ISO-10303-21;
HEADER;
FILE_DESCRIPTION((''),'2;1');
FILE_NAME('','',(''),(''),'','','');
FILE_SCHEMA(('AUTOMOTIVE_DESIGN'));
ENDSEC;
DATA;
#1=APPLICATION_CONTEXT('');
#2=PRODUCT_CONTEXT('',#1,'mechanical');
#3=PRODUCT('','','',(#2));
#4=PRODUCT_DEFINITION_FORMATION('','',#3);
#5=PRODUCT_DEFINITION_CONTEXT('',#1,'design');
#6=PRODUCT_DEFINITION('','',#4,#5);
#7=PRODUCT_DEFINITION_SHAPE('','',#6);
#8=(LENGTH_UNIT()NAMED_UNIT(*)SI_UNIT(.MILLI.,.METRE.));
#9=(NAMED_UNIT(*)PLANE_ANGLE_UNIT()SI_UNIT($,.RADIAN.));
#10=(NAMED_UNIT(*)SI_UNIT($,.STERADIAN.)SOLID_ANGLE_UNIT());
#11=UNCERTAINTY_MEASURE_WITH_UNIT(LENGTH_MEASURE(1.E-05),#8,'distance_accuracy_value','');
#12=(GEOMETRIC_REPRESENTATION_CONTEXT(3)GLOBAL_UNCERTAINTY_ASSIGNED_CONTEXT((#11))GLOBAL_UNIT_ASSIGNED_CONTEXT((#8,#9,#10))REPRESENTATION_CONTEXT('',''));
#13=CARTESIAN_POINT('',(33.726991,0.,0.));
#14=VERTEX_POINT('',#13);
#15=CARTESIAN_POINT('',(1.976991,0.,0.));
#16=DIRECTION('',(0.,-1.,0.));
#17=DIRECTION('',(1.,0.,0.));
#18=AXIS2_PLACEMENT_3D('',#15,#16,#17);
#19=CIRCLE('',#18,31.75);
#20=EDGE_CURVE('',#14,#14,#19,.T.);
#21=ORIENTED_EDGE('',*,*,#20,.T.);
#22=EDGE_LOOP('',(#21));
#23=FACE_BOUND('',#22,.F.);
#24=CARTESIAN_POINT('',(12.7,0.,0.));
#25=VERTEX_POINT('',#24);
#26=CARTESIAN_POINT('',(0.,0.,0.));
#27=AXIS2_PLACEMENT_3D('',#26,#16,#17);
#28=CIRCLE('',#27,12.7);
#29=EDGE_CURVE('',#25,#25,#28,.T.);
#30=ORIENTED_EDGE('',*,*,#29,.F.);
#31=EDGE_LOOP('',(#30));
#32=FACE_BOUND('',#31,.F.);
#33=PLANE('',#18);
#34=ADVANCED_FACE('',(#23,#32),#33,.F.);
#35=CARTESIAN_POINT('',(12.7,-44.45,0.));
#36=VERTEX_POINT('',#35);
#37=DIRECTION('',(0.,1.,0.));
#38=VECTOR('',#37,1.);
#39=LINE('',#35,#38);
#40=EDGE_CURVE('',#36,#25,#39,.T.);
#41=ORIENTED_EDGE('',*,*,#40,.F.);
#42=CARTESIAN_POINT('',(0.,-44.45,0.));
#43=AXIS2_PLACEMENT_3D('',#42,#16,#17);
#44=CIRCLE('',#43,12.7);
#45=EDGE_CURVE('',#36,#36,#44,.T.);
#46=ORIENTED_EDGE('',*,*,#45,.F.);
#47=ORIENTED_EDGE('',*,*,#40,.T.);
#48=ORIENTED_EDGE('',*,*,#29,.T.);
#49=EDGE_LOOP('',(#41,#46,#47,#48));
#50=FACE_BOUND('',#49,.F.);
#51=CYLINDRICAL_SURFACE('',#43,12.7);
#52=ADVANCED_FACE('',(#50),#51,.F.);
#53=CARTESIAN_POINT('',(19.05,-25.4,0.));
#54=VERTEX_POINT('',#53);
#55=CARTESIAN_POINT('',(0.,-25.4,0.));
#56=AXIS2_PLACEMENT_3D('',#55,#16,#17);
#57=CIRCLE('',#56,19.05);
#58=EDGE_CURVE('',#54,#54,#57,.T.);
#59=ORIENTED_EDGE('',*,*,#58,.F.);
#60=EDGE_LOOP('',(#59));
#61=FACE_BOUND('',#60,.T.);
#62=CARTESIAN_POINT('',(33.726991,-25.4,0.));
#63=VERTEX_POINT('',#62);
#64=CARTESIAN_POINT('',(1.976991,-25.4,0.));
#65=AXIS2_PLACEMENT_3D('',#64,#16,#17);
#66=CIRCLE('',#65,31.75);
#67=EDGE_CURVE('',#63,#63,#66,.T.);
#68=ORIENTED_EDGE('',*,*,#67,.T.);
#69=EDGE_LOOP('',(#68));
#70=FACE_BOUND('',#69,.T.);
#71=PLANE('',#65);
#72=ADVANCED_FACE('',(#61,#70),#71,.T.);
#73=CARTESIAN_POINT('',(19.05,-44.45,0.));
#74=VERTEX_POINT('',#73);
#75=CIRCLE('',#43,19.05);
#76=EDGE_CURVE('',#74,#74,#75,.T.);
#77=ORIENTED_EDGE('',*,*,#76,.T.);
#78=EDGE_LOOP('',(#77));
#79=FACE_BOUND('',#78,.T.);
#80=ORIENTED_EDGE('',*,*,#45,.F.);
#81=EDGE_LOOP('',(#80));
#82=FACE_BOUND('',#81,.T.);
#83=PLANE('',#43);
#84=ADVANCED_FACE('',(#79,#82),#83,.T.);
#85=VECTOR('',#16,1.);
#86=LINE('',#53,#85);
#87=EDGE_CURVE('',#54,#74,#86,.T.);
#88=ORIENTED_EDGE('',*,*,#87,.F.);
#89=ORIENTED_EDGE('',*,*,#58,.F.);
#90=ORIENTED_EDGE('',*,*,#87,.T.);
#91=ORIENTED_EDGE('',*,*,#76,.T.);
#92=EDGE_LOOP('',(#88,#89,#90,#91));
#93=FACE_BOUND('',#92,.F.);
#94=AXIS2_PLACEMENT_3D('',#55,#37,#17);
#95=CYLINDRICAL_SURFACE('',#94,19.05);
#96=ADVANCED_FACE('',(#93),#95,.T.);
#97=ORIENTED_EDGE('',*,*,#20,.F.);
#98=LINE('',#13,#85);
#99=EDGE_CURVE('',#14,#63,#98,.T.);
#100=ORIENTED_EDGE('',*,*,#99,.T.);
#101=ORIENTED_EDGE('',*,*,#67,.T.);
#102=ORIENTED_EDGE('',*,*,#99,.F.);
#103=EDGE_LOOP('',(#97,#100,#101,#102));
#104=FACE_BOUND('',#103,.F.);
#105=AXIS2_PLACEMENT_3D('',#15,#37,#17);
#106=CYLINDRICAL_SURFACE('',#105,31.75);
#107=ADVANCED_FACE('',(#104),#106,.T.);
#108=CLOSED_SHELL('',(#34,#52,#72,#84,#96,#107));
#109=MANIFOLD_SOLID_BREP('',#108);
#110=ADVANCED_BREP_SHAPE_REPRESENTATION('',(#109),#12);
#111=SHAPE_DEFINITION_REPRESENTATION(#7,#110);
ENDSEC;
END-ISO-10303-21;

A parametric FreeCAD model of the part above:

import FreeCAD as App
import Part
import Sketcher
Q = App.Units.Quantity

doc = App.newDocument("Part")
params = doc.addObject("Spreadsheet::Sheet", "Params")
for row, (alias, value) in enumerate([
    ("sketch1_diameter", "2.5 in"),
    ("pad1_length", "1 in"),
    ("sketch2_diameter", "1.5 in"),
    ("pad2_length", "0.75 in"),
    ("sketch3_diameter", "1 in"),
    ("pocket1_length", "7 in"),
], start=1):
    params.set(f"A{row}", alias)
    params.set(f"B{row}", "=" + value)
    params.setAlias(f"B{row}", alias)

body = doc.addObject("PartDesign::Body", "Body")

sketch1 = body.newObject("Sketcher::SketchObject", "Sketch")
sketch1.AttachmentSupport = (doc.getObject("XZ_Plane"), [""])
sketch1.MapMode = "FlatFace"
sketch1.addGeometry(Part.Circle(App.Vector(2, 0, 0), App.Vector(0, 0, 1), 32), False)
sketch1.addConstraint([
    Sketcher.Constraint("PointOnObject", 0, 3, -1),
    Sketcher.Constraint("Diameter", 0, Q("2.5 in")),
    Sketcher.Constraint("DistanceX", -1, 1, 0, 3, 1.976991),
])
sketch1.setExpression("Constraints[1]", "Params.sketch1_diameter")
pad1 = body.newObject("PartDesign::Pad", "Pad")
pad1.Profile = sketch1
pad1.setExpression("Length", "Params.pad1_length")

sketch2 = body.newObject("Sketcher::SketchObject", "Sketch001")
sketch2.AttachmentSupport = (doc.getObject("XZ_Plane"), [""])
sketch2.MapMode = "FlatFace"
sketch2.AttachmentOffset = App.Placement(App.Vector(0, 0, 1 * 25.4), App.Rotation())
sketch2.addGeometry(Part.Circle(App.Vector(0, 0, 0), App.Vector(0, 0, 1), 19), False)
sketch2.addConstraint([
    Sketcher.Constraint("Coincident", 0, 3, -1, 1),
    Sketcher.Constraint("Diameter", 0, Q("1.5 in")),
])
sketch2.setExpression("Constraints[1]", "Params.sketch2_diameter")
pad2 = body.newObject("PartDesign::Pad", "Pad001")
pad2.Profile = sketch2
pad2.setExpression("Length", "Params.pad2_length")

sketch3 = body.newObject("Sketcher::SketchObject", "Sketch002")
sketch3.AttachmentSupport = (doc.getObject("XZ_Plane"), [""])
sketch3.MapMode = "FlatFace"
sketch3.AttachmentOffset = App.Placement(App.Vector(0, 0, 1.75 * 25.4), App.Rotation())
sketch3.addGeometry(Part.Circle(App.Vector(0, 0, 0), App.Vector(0, 0, 1), 13), False)
sketch3.addConstraint([
    Sketcher.Constraint("Coincident", 0, 3, -1, 1),
    Sketcher.Constraint("Diameter", 0, Q("1 in")),
])
sketch3.setExpression("Constraints[1]", "Params.sketch3_diameter")
pocket1 = body.newObject("PartDesign::Pocket", "Pocket")
pocket1.Profile = sketch3
pocket1.setExpression("Length", "Params.pocket1_length")

doc.recompute()
